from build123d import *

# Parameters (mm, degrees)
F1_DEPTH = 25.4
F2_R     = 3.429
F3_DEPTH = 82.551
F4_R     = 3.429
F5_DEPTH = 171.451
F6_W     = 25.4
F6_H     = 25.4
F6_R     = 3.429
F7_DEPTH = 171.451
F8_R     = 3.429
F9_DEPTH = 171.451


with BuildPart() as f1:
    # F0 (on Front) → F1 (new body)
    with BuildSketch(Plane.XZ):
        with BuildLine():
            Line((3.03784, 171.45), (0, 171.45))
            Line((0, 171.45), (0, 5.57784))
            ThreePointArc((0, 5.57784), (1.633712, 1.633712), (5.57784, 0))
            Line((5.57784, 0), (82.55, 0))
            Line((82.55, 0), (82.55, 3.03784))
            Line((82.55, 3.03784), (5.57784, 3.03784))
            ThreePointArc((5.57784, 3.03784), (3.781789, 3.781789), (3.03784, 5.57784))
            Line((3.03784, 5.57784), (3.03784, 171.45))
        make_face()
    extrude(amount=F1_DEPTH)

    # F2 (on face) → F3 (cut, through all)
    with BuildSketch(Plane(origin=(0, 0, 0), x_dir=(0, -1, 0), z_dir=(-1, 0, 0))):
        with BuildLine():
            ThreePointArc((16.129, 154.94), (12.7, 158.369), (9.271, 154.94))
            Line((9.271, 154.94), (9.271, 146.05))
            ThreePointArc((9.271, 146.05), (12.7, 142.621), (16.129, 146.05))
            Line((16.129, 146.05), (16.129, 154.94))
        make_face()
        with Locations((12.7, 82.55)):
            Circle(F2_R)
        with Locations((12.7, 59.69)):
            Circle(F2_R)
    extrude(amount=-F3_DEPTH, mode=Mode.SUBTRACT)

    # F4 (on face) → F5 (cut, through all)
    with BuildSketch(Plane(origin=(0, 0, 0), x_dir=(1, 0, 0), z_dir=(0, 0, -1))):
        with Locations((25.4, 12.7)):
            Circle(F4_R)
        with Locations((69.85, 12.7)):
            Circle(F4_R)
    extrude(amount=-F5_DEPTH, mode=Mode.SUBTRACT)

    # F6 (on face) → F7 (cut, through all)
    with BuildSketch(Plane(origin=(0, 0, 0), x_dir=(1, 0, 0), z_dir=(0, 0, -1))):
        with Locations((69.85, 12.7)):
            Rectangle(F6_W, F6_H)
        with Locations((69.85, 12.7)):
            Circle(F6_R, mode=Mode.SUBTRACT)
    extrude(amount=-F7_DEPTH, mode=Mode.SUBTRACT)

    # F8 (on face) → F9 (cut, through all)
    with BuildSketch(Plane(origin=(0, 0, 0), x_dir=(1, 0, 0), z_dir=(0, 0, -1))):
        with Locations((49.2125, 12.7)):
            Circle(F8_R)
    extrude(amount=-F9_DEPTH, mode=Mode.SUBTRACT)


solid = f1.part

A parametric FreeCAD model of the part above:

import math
import FreeCAD as App
import Part
import Sketcher
from FreeCAD import Vector
Q = App.Units.Quantity

doc = App.newDocument("Part")
body = doc.addObject("PartDesign::Body", "Body")

sketch1 = doc.addObject("Sketcher::SketchObject", "Sketch")
body.addObject(sketch1)
sketch1.AttachmentSupport = (doc.XZ_Plane, [""])
sketch1.MapMode = "FlatFace"
sketch1.addGeometry(Part.LineSegment(Vector(3, 171.4, 0), Vector(0, 171.4, 0)), False)
sketch1.addGeometry(Part.LineSegment(Vector(0, 171.4, 0), Vector(0, 5.6, 0)), False)
sketch1.addGeometry(Part.ArcOfCircle(Part.Circle(Vector(5.6, 5.6, 0), Vector(0, 0, 1), 5.6), math.radians(-180), math.radians(-90)), False)
sketch1.addGeometry(Part.LineSegment(Vector(5.6, 0, 0), Vector(82.5, 0, 0)), False)
sketch1.addGeometry(Part.LineSegment(Vector(82.5, 0, 0), Vector(82.5, 3, 0)), False)
sketch1.addGeometry(Part.LineSegment(Vector(82.5, 3, 0), Vector(5.6, 3, 0)), False)
sketch1.addGeometry(Part.ArcOfCircle(Part.Circle(Vector(5.6, 5.6, 0), Vector(0, 0, 1), 2.5), math.radians(-180), math.radians(-90)), False)
sketch1.addGeometry(Part.LineSegment(Vector(3, 5.6, 0), Vector(3, 171.4, 0)), False)
sketch1.addConstraint(Sketcher.Constraint("Coincident", 0, 2, 1, 1))
sketch1.addConstraint(Sketcher.Constraint("Tangent", 1, 2, 2, 1))
sketch1.addConstraint(Sketcher.Constraint("Tangent", 2, 2, 3, 1))
sketch1.addConstraint(Sketcher.Constraint("Coincident", 3, 2, 4, 1))
sketch1.addConstraint(Sketcher.Constraint("Coincident", 4, 2, 5, 1))
sketch1.addConstraint(Sketcher.Constraint("Tangent", 5, 2, 6, 2))
sketch1.addConstraint(Sketcher.Constraint("Tangent", 6, 1, 7, 1))
sketch1.addConstraint(Sketcher.Constraint("Coincident", 7, 2, 0, 1))
sketch1.addConstraint(Sketcher.Constraint("Horizontal", 0))
sketch1.addConstraint(Sketcher.Constraint("Vertical", 1))
sketch1.addConstraint(Sketcher.Constraint("Horizontal", 3))
sketch1.addConstraint(Sketcher.Constraint("Vertical", 4))
sketch1.addConstraint(Sketcher.Constraint("Horizontal", 5))
sketch1.addConstraint(Sketcher.Constraint("Vertical", 7))
sketch1.addConstraint(Sketcher.Constraint("Coincident", 6, 3, 2, 3))
sketch1.addConstraint(Sketcher.Constraint("PointOnObject", 0, 2, -2))
sketch1.addConstraint(Sketcher.Constraint("PointOnObject", 2, 2, -1))
sketch1.addConstraint(Sketcher.Constraint("Radius", 6, Q("0.1 in")))
sketch1.addConstraint(Sketcher.Constraint("Radius", 2, Q("0.2196001 in")))
sketch1.addConstraint(Sketcher.Constraint("DistanceY", -1, 1, 0, 2, Q("6.75 in")))
sketch1.addConstraint(Sketcher.Constraint("DistanceX", -1, 1, 3, 2, Q("3.25 in")))
pad1 = doc.addObject("PartDesign::Pad", "Pad")
body.addObject(pad1)
pad1.Profile = sketch1
pad1.Length = Q("1 in")

sketch2 = doc.addObject("Sketcher::SketchObject", "Sketch001")
body.addObject(sketch2)
sketch2.AttachmentSupport = (doc.YZ_Plane, [""])
sketch2.MapMode = "FlatFace"
sketch2.addGeometry(Part.ArcOfCircle(Part.Circle(Vector(-12.7, 154.9, 0), Vector(0, 0, 1), 3.4), math.radians(0), math.radians(180)), False)
sketch2.addGeometry(Part.LineSegment(Vector(-9.3, 154.9, 0), Vector(-9.3, 146.1, 0)), False)
sketch2.addGeometry(Part.ArcOfCircle(Part.Circle(Vector(-12.7, 146.1, 0), Vector(0, 0, 1), 3.4), math.radians(180), math.radians(360)), False)
sketch2.addGeometry(Part.LineSegment(Vector(-16.1, 146.1, 0), Vector(-16.1, 154.9, 0)), False)
sketch2.addGeometry(Part.Circle(Vector(-12.7, 82.5, 0), Vector(0, 0, 1), 3.4), False)
sketch2.addGeometry(Part.Circle(Vector(-12.7, 59.7, 0), Vector(0, 0, 1), 3.4), False)
sketch2.addConstraint(Sketcher.Constraint("Tangent", 0, 1, 1, 1))
sketch2.addConstraint(Sketcher.Constraint("Tangent", 1, 2, 2, 2))
sketch2.addConstraint(Sketcher.Constraint("Tangent", 2, 1, 3, 1))
sketch2.addConstraint(Sketcher.Constraint("Tangent", 3, 2, 0, 2))
sketch2.addConstraint(Sketcher.Constraint("Vertical", 1))
sketch2.addConstraint(Sketcher.Constraint("Vertical", 3))
sketch2.addConstraint(Sketcher.Constraint("Equal", 2, 4))
sketch2.addConstraint(Sketcher.Constraint("Equal", 4, 5))
sketch2.addConstraint(Sketcher.Constraint("Vertical", 2, 3, 4, 3))
sketch2.addConstraint(Sketcher.Constraint("Vertical", 4, 3, 5, 3))
sketch2.addConstraint(Sketcher.Constraint("Diameter", 4, Q("0.27 in")))
sketch2.addConstraint(Sketcher.Constraint("DistanceY", 1, 2, 1, 1, Q("0.35 in")))
sketch2.addConstraint(Sketcher.Constraint("DistanceX", 0, 3, -1, 1, Q("0.5 in")))
sketch2.addConstraint(Sketcher.Constraint("DistanceY", -1, 1, 0, 3, Q("6.1 in")))
sketch2.addConstraint(Sketcher.Constraint("DistanceY", 4, 3, 2, 3, Q("2.5 in")))
sketch2.addConstraint(Sketcher.Constraint("DistanceY", 5, 3, 4, 3, Q("0.9 in")))
pocket1 = doc.addObject("PartDesign::Pocket", "Pocket")
body.addObject(pocket1)
pocket1.Profile = sketch2
pocket1.Type = "ThroughAll"
pocket1.Reversed = True

sketch3 = doc.addObject("Sketcher::SketchObject", "Sketch002")
body.addObject(sketch3)
sketch3.AttachmentSupport = (doc.XY_Plane, [""])
sketch3.MapMode = "FlatFace"
sketch3.addGeometry(Part.Circle(Vector(25.4, -12.7, 0), Vector(0, 0, 1), 3.4), False)
sketch3.addGeometry(Part.Circle(Vector(69.8, -12.7, 0), Vector(0, 0, 1), 3.4), False)
sketch3.addConstraint(Sketcher.Constraint("Equal", 0, 1))
sketch3.addConstraint(Sketcher.Constraint("Horizontal", 0, 3, 1, 3))
sketch3.addConstraint(Sketcher.Constraint("Diameter", 0, Q("0.27 in")))
sketch3.addConstraint(Sketcher.Constraint("DistanceX", -1, 1, 0, 3, Q("1 in")))
sketch3.addConstraint(Sketcher.Constraint("DistanceY", 0, 3, -1, 1, Q("0.5 in")))
sketch3.addConstraint(Sketcher.Constraint("DistanceX", -1, 1, 1, 3, Q("2.75 in")))
pocket2 = doc.addObject("PartDesign::Pocket", "Pocket001")
body.addObject(pocket2)
pocket2.Profile = sketch3
pocket2.Type = "ThroughAll"
pocket2.Reversed = True

sketch4 = doc.addObject("Sketcher::SketchObject", "Sketch003")
body.addObject(sketch4)
sketch4.AttachmentSupport = (doc.XY_Plane, [""])
sketch4.MapMode = "FlatFace"
sketch4.addGeometry(Part.LineSegment(Vector(57.1, -25.4, 0), Vector(57.1, 0, 0)), False)
sketch4.addGeometry(Part.LineSegment(Vector(57.1, 0, 0), Vector(82.5, 0, 0)), False)
sketch4.addGeometry(Part.LineSegment(Vector(82.5, 0, 0), Vector(82.5, -25.4, 0)), False)
sketch4.addGeometry(Part.LineSegment(Vector(82.5, -25.4, 0), Vector(57.1, -25.4, 0)), False)
sketch4.addGeometry(Part.Circle(Vector(69.8, -12.7, 0), Vector(0, 0, 1), 3.4), False)
sketch4.addConstraint(Sketcher.Constraint("Coincident", 0, 2, 1, 1))
sketch4.addConstraint(Sketcher.Constraint("Coincident", 1, 2, 2, 1))
sketch4.addConstraint(Sketcher.Constraint("Coincident", 2, 2, 3, 1))
sketch4.addConstraint(Sketcher.Constraint("Coincident", 3, 2, 0, 1))
sketch4.addConstraint(Sketcher.Constraint("Vertical", 0))
sketch4.addConstraint(Sketcher.Constraint("Horizontal", 1))
sketch4.addConstraint(Sketcher.Constraint("Vertical", 2))
sketch4.addConstraint(Sketcher.Constraint("Horizontal", 3))
sketch4.addConstraint(Sketcher.Constraint("PointOnObject", 0, 2, -1))
sketch4.addConstraint(Sketcher.Constraint("Equal", 3, 0))
sketch4.addConstraint(Sketcher.Constraint("Diameter", 4, Q("0.27 in")))
sketch4.addConstraint(Sketcher.Constraint("DistanceX", 1, 1, 1, 2, Q("1 in")))
sketch4.addConstraint(Sketcher.Constraint("DistanceY", 4, 3, -1, 1, Q("0.5 in")))
sketch4.addConstraint(Sketcher.Constraint("DistanceX", 0, 2, 4, 3, Q("0.5 in")))
sketch4.addConstraint(Sketcher.Constraint("DistanceX", -1, 1, 4, 3, Q("2.75 in")))
pocket3 = doc.addObject("PartDesign::Pocket", "Pocket002")
body.addObject(pocket3)
pocket3.Profile = sketch4
pocket3.Type = "ThroughAll"
pocket3.Reversed = True

sketch5 = doc.addObject("Sketcher::SketchObject", "Sketch004")
body.addObject(sketch5)
sketch5.AttachmentSupport = (doc.XY_Plane, [""])
sketch5.MapMode = "FlatFace"
sketch5.addGeometry(Part.Circle(Vector(49.2, -12.7, 0), Vector(0, 0, 1), 3.4), False)
sketch5.addConstraint(Sketcher.Constraint("Diameter", 0, Q("0.27 in")))
sketch5.addConstraint(Sketcher.Constraint("DistanceY", 0, 3, -1, 1, Q("0.5 in")))
sketch5.addConstraint(Sketcher.Constraint("DistanceX", -1, 1, 0, 3, Q("1.9375 in")))
pocket4 = doc.addObject("PartDesign::Pocket", "Pocket003")
body.addObject(pocket4)
pocket4.Profile = sketch5
pocket4.Type = "ThroughAll"
pocket4.Reversed = True

doc.recompute()
